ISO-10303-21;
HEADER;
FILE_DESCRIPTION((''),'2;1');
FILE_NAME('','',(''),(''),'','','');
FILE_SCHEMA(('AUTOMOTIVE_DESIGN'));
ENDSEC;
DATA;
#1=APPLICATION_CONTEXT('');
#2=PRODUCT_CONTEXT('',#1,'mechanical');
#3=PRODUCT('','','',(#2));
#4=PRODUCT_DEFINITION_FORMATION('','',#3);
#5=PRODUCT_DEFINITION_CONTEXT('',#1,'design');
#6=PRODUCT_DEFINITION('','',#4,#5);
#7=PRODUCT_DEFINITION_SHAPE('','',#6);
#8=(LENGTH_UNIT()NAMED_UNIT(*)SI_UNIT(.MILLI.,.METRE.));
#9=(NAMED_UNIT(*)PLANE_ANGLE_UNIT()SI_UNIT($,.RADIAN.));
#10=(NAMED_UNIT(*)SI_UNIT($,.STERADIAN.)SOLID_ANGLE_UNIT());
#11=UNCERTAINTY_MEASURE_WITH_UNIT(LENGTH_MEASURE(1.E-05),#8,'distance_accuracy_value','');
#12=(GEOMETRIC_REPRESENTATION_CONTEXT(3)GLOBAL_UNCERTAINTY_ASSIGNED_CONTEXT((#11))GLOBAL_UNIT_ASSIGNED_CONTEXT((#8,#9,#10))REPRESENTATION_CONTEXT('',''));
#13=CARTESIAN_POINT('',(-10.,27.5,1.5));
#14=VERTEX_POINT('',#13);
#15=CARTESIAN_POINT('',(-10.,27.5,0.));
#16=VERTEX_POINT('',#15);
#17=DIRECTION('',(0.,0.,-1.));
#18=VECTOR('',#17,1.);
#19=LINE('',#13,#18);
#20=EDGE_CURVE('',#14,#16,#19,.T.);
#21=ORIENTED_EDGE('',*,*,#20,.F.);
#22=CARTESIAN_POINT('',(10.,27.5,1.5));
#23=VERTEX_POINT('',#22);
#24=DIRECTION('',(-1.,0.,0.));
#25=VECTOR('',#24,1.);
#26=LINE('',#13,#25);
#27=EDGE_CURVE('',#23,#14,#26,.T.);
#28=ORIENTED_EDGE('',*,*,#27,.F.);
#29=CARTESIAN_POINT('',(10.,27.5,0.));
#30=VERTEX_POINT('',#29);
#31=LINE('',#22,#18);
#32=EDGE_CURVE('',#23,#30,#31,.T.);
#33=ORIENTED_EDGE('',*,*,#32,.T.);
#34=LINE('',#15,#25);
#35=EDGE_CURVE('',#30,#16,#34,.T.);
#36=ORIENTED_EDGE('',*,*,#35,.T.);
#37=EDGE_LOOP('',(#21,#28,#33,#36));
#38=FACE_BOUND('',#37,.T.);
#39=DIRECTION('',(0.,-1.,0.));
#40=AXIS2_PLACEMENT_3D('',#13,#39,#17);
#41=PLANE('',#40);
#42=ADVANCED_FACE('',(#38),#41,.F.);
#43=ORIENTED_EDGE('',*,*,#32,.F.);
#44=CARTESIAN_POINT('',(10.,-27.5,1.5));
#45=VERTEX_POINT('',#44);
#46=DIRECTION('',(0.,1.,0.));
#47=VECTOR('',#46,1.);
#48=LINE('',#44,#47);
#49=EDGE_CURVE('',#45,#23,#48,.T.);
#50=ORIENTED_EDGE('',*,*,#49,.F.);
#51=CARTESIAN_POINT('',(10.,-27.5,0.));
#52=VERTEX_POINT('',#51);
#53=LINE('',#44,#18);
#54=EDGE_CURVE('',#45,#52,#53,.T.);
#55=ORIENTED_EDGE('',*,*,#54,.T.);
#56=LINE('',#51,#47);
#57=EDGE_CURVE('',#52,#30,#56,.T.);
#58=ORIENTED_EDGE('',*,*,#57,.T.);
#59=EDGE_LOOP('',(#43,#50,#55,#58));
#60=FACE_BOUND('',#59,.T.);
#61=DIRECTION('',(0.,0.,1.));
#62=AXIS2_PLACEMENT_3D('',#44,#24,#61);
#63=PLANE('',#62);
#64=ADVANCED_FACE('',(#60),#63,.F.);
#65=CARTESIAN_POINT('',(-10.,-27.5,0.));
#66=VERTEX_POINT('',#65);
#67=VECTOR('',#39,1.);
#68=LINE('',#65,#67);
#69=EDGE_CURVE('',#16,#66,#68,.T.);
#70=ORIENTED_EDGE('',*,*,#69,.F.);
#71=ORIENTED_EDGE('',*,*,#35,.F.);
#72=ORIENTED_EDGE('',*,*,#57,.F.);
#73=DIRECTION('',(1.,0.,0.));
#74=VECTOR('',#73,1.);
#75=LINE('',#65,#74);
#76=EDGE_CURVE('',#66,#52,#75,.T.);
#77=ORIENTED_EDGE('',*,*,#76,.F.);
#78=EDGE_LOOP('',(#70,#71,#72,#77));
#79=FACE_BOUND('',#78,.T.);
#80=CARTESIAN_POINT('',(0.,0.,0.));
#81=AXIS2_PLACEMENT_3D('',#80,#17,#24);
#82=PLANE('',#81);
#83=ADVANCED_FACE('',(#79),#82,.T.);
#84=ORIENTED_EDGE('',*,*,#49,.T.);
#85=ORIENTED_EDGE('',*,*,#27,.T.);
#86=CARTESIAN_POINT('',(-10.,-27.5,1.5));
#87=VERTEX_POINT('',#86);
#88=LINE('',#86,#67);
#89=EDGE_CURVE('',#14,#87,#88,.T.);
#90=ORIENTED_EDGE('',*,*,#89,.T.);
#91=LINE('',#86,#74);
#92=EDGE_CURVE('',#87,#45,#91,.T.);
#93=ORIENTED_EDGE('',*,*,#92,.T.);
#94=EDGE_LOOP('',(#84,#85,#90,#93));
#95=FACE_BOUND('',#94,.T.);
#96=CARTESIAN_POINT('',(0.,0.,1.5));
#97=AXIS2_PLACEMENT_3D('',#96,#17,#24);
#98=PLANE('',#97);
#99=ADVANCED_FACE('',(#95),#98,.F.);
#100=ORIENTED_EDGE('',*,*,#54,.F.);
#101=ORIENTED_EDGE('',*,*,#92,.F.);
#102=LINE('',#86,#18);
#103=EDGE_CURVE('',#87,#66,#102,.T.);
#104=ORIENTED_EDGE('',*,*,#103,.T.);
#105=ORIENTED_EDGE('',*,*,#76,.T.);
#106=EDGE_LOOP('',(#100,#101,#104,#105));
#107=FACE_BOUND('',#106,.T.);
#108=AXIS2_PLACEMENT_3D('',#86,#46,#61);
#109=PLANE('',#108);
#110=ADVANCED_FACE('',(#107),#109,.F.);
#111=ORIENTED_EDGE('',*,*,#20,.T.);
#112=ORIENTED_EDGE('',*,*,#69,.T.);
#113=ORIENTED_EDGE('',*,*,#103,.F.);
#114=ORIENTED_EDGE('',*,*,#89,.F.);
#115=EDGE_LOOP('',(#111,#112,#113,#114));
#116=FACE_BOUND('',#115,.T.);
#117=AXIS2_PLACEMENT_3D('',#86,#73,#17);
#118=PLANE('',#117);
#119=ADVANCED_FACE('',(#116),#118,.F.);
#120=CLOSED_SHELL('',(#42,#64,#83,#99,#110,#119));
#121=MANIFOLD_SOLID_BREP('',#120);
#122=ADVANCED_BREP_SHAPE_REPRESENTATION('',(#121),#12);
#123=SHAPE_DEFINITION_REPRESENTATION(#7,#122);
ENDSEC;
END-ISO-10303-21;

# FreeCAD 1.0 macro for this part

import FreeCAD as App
import Part
import Sketcher

V = App.Vector
Q = App.Units.Quantity

doc = App.newDocument("Part")
body = doc.addObject("PartDesign::Body", "Body")

sketch1 = body.newObject("Sketcher::SketchObject", "Sketch")
sketch1.AttachmentSupport = (doc.getObject("XY_Plane"), [""])
sketch1.MapMode = "FlatFace"
sketch1.addGeometry(Part.LineSegment(V(-10, 27.5, 0), V(-10, -27.5, 0)), False)
sketch1.addGeometry(Part.LineSegment(V(-10, -27.5, 0), V(10, -27.5, 0)), False)
sketch1.addGeometry(Part.LineSegment(V(10, -27.5, 0), V(10, 27.5, 0)), False)
sketch1.addGeometry(Part.LineSegment(V(10, 27.5, 0), V(-10, 27.5, 0)), False)
sketch1.addConstraint(Sketcher.Constraint("Coincident", 0, 2, 1, 1))
sketch1.addConstraint(Sketcher.Constraint("Coincident", 1, 2, 2, 1))
sketch1.addConstraint(Sketcher.Constraint("Coincident", 2, 2, 3, 1))
sketch1.addConstraint(Sketcher.Constraint("Coincident", 3, 2, 0, 1))
sketch1.addConstraint(Sketcher.Constraint("Vertical", 0))
sketch1.addConstraint(Sketcher.Constraint("Horizontal", 1))
sketch1.addConstraint(Sketcher.Constraint("Vertical", 2))
sketch1.addConstraint(Sketcher.Constraint("Horizontal", 3))
sketch1.addConstraint(Sketcher.Constraint("Symmetric", 0, 2, 2, 2, -1, 1))
sketch1.addConstraint(Sketcher.Constraint("DistanceX", 1, 1, 1, 2, Q("20 mm")))
sketch1.addConstraint(Sketcher.Constraint("DistanceY", 0, 2, 0, 1, Q("55 mm")))
pad1 = body.newObject("PartDesign::Pad", "Pad")
pad1.Profile = sketch1
pad1.Length = 1.5

doc.recompute()
